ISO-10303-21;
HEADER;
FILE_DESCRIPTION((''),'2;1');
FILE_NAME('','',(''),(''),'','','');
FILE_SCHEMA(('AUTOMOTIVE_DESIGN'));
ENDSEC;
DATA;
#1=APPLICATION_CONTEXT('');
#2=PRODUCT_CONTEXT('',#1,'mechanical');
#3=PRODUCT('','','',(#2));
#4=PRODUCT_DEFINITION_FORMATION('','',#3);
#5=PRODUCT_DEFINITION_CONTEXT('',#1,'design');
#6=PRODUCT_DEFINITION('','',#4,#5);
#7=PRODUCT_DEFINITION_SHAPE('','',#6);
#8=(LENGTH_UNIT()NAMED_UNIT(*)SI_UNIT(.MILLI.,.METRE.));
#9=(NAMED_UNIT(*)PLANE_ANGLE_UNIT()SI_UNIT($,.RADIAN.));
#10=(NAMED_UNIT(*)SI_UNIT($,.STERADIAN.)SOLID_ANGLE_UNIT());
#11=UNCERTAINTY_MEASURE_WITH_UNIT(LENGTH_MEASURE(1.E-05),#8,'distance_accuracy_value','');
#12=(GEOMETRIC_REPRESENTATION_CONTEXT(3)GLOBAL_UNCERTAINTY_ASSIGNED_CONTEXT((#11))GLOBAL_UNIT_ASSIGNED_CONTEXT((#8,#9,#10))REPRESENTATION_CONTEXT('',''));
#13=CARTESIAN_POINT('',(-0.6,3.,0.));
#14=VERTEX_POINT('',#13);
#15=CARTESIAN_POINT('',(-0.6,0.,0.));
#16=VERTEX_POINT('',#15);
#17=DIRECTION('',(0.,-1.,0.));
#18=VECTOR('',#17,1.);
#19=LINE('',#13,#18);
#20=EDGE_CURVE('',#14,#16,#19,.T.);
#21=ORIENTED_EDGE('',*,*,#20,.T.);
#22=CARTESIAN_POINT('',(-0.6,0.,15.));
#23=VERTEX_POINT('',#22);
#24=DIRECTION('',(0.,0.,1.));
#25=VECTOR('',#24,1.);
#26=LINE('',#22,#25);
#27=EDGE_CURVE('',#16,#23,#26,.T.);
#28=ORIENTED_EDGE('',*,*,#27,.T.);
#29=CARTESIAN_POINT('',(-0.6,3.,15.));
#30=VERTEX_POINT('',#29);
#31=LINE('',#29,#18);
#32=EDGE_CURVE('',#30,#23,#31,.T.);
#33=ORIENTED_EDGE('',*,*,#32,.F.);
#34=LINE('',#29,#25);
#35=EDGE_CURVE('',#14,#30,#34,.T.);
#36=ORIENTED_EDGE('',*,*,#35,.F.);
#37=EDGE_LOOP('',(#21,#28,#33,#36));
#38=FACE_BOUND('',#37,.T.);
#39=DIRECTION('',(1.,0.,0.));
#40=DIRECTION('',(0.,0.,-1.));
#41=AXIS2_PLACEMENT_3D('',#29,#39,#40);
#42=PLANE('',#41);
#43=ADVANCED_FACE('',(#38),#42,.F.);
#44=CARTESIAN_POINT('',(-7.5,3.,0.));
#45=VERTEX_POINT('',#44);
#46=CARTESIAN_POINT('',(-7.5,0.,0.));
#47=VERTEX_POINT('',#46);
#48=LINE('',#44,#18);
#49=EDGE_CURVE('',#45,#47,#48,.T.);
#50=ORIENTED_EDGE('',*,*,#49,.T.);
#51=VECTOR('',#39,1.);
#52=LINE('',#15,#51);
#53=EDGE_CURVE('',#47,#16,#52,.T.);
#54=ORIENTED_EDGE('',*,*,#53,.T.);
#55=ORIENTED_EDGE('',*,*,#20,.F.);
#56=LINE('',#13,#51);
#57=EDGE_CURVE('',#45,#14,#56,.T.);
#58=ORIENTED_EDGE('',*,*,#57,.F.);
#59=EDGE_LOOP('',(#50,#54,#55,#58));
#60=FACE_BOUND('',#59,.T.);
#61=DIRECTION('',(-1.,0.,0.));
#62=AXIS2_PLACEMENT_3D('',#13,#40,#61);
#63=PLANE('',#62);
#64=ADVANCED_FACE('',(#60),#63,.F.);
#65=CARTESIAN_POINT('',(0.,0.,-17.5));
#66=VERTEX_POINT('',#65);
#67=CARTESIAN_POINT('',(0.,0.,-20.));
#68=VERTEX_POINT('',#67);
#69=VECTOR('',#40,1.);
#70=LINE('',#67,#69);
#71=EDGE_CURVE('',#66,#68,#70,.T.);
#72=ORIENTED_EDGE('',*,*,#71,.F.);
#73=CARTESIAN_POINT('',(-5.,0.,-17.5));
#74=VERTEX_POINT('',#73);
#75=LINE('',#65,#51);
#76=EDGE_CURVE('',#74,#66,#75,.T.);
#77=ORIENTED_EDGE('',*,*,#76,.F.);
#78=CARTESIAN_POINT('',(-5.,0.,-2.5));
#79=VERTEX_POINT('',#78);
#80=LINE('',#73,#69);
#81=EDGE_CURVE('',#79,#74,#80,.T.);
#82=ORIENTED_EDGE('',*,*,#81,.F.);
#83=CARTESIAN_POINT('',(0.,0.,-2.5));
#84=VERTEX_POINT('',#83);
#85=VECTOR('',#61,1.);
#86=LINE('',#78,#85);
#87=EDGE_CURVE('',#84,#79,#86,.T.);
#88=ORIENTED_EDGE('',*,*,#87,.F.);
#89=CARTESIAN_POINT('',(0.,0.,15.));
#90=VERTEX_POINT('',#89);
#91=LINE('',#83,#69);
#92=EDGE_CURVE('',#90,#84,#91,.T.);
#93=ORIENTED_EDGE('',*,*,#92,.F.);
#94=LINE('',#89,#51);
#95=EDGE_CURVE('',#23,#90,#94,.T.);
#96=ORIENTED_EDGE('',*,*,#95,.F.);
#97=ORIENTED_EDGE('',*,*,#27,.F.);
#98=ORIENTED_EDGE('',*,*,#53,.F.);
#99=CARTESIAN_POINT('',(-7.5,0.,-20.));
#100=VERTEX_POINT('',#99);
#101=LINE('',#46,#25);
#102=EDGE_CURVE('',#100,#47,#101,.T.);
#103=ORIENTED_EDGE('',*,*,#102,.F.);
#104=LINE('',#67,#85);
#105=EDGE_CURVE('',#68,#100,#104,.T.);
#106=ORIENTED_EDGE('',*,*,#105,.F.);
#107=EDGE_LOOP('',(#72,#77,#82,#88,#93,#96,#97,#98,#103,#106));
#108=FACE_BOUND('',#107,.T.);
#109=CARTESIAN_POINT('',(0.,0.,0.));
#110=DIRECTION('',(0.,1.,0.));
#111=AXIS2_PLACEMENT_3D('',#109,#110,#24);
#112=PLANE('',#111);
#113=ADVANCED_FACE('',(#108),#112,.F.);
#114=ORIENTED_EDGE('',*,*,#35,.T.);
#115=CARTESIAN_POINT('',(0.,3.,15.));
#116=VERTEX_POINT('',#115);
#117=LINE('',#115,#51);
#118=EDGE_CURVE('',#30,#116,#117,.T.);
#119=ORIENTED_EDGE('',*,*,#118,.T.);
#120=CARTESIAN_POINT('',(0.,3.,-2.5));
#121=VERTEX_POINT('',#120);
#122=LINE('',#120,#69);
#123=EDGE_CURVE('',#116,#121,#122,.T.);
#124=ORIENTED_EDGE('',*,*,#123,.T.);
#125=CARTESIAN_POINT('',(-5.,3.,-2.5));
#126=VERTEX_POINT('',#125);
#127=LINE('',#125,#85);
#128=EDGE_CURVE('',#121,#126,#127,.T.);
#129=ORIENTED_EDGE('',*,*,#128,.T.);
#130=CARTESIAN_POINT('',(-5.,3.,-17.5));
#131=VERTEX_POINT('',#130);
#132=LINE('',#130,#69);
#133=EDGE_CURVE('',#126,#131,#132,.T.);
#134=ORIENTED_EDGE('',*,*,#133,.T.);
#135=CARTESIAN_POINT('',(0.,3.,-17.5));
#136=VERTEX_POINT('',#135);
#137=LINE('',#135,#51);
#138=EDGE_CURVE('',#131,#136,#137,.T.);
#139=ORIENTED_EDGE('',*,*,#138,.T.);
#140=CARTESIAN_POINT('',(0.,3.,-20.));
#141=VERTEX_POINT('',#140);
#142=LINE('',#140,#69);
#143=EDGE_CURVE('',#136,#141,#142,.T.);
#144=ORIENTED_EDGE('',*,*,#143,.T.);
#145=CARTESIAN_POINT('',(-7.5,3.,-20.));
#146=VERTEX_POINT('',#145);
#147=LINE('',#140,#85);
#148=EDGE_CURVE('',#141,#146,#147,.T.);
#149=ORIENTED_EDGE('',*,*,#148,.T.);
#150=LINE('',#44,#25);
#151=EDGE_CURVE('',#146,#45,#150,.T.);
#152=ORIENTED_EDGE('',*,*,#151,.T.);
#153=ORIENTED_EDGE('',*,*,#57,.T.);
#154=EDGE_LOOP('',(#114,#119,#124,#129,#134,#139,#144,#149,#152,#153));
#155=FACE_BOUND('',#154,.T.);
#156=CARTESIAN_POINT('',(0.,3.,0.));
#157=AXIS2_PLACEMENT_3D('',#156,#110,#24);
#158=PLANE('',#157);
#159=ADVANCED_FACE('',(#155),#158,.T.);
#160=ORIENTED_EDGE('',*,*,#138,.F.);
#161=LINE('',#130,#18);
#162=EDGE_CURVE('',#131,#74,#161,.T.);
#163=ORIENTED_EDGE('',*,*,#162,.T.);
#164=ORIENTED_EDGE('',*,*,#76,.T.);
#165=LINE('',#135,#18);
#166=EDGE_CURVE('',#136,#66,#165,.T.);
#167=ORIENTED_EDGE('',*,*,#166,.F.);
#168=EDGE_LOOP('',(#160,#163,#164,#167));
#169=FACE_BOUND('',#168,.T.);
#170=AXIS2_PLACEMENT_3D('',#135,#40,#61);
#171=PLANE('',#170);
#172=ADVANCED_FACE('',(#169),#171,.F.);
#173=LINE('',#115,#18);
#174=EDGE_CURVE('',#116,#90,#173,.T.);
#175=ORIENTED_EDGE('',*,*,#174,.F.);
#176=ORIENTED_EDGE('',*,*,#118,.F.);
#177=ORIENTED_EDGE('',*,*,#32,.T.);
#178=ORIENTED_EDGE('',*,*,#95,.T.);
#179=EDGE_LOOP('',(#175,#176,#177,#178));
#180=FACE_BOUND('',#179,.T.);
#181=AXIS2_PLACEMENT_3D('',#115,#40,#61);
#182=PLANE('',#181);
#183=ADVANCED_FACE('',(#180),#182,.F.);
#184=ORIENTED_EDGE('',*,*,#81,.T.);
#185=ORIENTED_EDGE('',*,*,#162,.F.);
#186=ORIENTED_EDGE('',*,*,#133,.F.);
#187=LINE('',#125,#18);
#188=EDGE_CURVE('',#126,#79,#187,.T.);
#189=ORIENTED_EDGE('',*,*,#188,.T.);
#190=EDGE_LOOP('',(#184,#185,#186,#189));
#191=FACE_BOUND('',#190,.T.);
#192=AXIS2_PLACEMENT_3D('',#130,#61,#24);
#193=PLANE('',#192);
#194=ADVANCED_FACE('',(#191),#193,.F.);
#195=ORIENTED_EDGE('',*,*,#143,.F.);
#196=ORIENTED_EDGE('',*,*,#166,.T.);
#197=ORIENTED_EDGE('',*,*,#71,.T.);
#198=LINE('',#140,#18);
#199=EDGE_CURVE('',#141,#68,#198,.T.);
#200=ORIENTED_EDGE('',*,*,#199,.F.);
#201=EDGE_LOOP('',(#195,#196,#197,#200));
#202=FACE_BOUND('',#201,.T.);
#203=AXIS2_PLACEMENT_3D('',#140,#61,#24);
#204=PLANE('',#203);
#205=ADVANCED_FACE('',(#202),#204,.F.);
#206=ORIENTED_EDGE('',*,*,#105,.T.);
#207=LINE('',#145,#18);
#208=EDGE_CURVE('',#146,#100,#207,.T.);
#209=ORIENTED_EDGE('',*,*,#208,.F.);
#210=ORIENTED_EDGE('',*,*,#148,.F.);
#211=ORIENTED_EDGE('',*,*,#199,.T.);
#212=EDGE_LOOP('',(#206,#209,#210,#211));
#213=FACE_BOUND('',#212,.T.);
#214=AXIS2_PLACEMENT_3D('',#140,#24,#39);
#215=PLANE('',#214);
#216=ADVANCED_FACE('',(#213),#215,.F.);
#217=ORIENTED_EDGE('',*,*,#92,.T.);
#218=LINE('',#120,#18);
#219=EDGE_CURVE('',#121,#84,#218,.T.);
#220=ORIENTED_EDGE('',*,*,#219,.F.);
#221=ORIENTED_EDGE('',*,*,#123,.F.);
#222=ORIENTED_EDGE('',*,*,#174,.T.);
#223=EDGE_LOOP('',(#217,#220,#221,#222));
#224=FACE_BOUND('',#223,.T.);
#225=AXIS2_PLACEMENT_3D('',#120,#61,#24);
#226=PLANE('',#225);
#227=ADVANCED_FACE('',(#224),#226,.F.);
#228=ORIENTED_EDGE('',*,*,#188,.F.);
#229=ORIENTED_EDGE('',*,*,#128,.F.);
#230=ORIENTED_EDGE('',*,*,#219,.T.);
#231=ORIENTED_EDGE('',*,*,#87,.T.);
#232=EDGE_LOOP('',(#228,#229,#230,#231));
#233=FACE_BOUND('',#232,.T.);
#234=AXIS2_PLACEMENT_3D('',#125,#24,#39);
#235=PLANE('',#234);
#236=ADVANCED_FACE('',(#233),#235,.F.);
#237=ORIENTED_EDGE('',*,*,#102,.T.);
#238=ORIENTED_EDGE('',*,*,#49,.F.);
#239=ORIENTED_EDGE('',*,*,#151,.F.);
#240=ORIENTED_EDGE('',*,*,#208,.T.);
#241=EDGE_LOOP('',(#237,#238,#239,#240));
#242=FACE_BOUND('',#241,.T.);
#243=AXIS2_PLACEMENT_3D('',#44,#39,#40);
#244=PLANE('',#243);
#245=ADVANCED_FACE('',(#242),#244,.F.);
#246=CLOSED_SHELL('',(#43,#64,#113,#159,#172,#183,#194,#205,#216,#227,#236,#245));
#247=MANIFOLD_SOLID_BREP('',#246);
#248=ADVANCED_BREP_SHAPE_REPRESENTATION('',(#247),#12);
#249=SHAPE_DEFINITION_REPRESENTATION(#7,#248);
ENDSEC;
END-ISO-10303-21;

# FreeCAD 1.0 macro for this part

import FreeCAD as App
import Part
import Sketcher
from FreeCAD import Vector
Q = App.Units.Quantity


def add_polygon(sketch, points):
    """Adds a closed chain of lines whose ends are joined by coincident constraints."""
    first, n = sketch.GeometryCount, len(points)
    for a, b in zip(points, points[1:] + points[:1]):
        sketch.addGeometry(Part.LineSegment(App.Vector(*a, 0), App.Vector(*b, 0)), False)
    for i in range(n):
        sketch.addConstraint(Sketcher.Constraint("Coincident", first + i, 2, first + (i + 1) % n, 1))

doc = App.newDocument("Part")
body = doc.addObject("PartDesign::Body", "Body")

# Sketch on XZ plane
sketch1 = body.newObject("Sketcher::SketchObject", "Sketch")
sketch1.AttachmentSupport = (doc.getObject("XZ_Plane"), [""])
sketch1.MapMode = "FlatFace"
add_polygon(sketch1, [(0, -17.5), (0, -20), (-7.5, -20), (-7.5, 0), (-0.6, 0), (-0.6, 15), (0, 15), (0, -2.5), (-5, -2.5), (-5, -17.5)])  # lines 0-9
sketch1.addConstraint([
    Sketcher.Constraint("Vertical", 0),
    Sketcher.Constraint("Horizontal", 1),
    Sketcher.Constraint("Vertical", 2),
    Sketcher.Constraint("Horizontal", 3),
    Sketcher.Constraint("Vertical", 4),
    Sketcher.Constraint("Horizontal", 5),
    Sketcher.Constraint("Vertical", 6),
    Sketcher.Constraint("Horizontal", 7),
    Sketcher.Constraint("Vertical", 8),
    Sketcher.Constraint("Horizontal", 9),
    Sketcher.Constraint("PointOnObject", 0, 2, -2),
    Sketcher.Constraint("PointOnObject", 2, 2, -1),
    Sketcher.Constraint("PointOnObject", 5, 2, -2),
    Sketcher.Constraint("Equal", 4, 8),
    Sketcher.Constraint("DistanceX", 7, 2, 7, 1, Q("5 mm")),
    Sketcher.Constraint("DistanceY", 2, 1, 2, 2, Q("20 mm")),
    Sketcher.Constraint("DistanceY", 4, 1, 4, 2, Q("15 mm")),
    Sketcher.Constraint("DistanceX", 1, 2, 1, 1, Q("7.5 mm")),
    Sketcher.Constraint("DistanceX", 3, 1, 3, 2, Q("6.9 mm")),
    Sketcher.Constraint("DistanceY", 0, 2, 0, 1, Q("2.5 mm")),
])
pad1 = body.newObject("PartDesign::Pad", "Pad")
pad1.Profile = sketch1
pad1.Length = 3
pad1.Reversed = True

doc.recompute()
